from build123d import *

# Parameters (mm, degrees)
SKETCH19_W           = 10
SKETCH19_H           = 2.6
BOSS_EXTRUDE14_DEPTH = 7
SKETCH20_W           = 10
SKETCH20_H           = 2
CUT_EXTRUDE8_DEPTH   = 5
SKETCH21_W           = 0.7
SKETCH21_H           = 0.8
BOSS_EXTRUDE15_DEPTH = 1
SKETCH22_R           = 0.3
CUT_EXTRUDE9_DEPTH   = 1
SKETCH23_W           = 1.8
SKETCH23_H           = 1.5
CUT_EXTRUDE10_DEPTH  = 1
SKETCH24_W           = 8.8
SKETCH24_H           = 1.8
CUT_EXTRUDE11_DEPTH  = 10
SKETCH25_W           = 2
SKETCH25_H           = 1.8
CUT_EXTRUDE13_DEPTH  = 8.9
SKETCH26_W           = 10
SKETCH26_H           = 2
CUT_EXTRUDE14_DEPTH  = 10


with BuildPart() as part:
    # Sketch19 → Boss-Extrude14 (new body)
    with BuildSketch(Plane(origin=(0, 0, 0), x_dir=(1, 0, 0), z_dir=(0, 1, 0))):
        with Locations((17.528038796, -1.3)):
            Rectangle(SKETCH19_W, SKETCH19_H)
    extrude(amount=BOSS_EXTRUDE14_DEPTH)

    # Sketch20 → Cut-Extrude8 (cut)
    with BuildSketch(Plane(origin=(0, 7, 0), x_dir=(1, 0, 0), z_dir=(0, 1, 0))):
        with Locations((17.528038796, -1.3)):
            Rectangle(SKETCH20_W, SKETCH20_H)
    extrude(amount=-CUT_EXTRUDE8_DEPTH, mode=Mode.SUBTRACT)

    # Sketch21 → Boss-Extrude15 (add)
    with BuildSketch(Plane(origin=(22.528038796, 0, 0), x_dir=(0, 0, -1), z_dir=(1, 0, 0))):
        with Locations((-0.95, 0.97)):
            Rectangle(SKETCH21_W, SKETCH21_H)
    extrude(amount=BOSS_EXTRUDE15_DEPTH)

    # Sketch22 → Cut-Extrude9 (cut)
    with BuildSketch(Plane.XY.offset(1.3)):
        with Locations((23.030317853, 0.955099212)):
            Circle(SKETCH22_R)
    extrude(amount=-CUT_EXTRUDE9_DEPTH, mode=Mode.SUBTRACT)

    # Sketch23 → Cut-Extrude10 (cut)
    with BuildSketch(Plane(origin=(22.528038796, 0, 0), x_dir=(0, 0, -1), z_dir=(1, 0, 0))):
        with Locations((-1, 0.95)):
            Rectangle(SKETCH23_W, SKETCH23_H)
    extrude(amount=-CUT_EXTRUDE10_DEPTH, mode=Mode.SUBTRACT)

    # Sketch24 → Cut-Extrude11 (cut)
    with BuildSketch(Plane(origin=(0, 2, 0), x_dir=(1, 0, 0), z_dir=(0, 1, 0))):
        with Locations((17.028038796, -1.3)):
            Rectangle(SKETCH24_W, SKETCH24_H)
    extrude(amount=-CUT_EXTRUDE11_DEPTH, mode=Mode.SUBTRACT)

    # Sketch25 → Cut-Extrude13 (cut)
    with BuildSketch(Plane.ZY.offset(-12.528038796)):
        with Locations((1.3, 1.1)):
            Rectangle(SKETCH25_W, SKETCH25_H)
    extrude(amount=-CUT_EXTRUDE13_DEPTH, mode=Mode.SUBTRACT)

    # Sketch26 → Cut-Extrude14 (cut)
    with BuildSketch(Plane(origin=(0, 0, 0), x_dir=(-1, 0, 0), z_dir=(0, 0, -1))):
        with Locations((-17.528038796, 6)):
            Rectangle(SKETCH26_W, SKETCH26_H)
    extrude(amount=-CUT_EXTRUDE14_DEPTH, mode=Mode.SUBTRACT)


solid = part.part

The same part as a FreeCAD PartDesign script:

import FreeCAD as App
import Part
import Sketcher

V = App.Vector


def add_polygon(sketch, points):
    """Adds a closed chain of lines whose ends are joined by coincident constraints."""
    first, n = sketch.GeometryCount, len(points)
    for a, b in zip(points, points[1:] + points[:1]):
        sketch.addGeometry(Part.LineSegment(App.Vector(*a, 0), App.Vector(*b, 0)), False)
    for i in range(n):
        sketch.addConstraint(Sketcher.Constraint("Coincident", first + i, 2, first + (i + 1) % n, 1))

doc = App.newDocument("Part")
params = doc.addObject("Spreadsheet::Sheet", "Params")
for row, (alias, value) in enumerate([
    ("sketch1_width", "10 mm"),
    ("sketch1_height", "2.6 mm"),
    ("pad1_length", "7 mm"),
    ("sketch2_width", "10 mm"),
    ("sketch2_height", "2 mm"),
    ("pocket1_length", "5 mm"),
    ("sketch3_width", "0.8 mm"),
    ("sketch3_height", "0.7 mm"),
    ("pad2_length", "1 mm"),
    ("sketch4_diameter", "0.6 mm"),
    ("pocket2_length", "1 mm"),
    ("sketch5_width", "1.5 mm"),
    ("sketch5_height", "1.8 mm"),
    ("pocket3_length", "1 mm"),
    ("sketch6_width", "8.8 mm"),
    ("sketch6_height", "1.8 mm"),
    ("pocket4_length", "10 mm"),
    ("sketch7_height", "2 mm"),
    ("sketch7_width", "1.8 mm"),
    ("pocket5_length", "8.9 mm"),
    ("sketch8_width", "10 mm"),
    ("sketch8_height", "2 mm"),
    ("pocket6_length", "10 mm"),
], start=1):
    params.set(f"A{row}", alias)
    params.set(f"B{row}", "=" + value)
    params.setAlias(f"B{row}", alias)

body = doc.addObject("PartDesign::Body", "Body")
body.AllowCompound = True

# Sketch on XZ plane
sketch1 = body.newObject("Sketcher::SketchObject", "Sketch")
sketch1.AttachmentSupport = (doc.getObject("XZ_Plane"), [""])
sketch1.MapMode = "FlatFace"
add_polygon(sketch1, [(12.528039, 0), (12.528039, 2.6), (22.528039, 2.6), (22.528039, 0)])  # lines 0-3
sketch1.addConstraint([
    Sketcher.Constraint("Vertical", 0),
    Sketcher.Constraint("Horizontal", 1),
    Sketcher.Constraint("Vertical", 2),
    Sketcher.Constraint("Horizontal", 3),
    Sketcher.Constraint("PointOnObject", 2, 2, -1),
    Sketcher.Constraint("DistanceX", 1, 1, 1, 2, 10.0),
    Sketcher.Constraint("DistanceY", 0, 1, 0, 2, 2.6),
    Sketcher.Constraint("DistanceX", -1, 1, 0, 2, 12.528039),
])
sketch1.setExpression("Constraints[9]", "Params.sketch1_width")
sketch1.setExpression("Constraints[10]", "Params.sketch1_height")
pad1 = body.newObject("PartDesign::Pad", "Pad")
pad1.Profile = sketch1
pad1.setExpression("Length", "Params.pad1_length")
pad1.Reversed = True

# Sketch on XZ plane
sketch2 = body.newObject("Sketcher::SketchObject", "Sketch001")
sketch2.AttachmentSupport = (doc.getObject("XZ_Plane"), [""])
sketch2.MapMode = "FlatFace"
sketch2.AttachmentOffset = App.Placement(V(0, 0, -7), App.Rotation())
add_polygon(sketch2, [(12.528039, 0.3), (12.528039, 2.3), (22.528039, 2.3), (22.528039, 0.3)])  # lines 0-3
sketch2.addConstraint([
    Sketcher.Constraint("Vertical", 0),
    Sketcher.Constraint("Horizontal", 1),
    Sketcher.Constraint("Vertical", 2),
    Sketcher.Constraint("Horizontal", 3),
    Sketcher.Constraint("DistanceX", 1, 1, 1, 2, 10.0),
    Sketcher.Constraint("DistanceY", 0, 1, 0, 2, 2.0),
    Sketcher.Constraint("DistanceY", -1, 1, 0, 2, 2.3),
    Sketcher.Constraint("DistanceX", -1, 1, 0, 2, 12.528039),
])
sketch2.setExpression("Constraints[8]", "Params.sketch2_width")
sketch2.setExpression("Constraints[9]", "Params.sketch2_height")
pocket1 = body.newObject("PartDesign::Pocket", "Pocket")
pocket1.Profile = sketch2
pocket1.setExpression("Length", "Params.pocket1_length")
pocket1.Reversed = True

# Sketch on YZ plane
sketch3 = body.newObject("Sketcher::SketchObject", "Sketch002")
sketch3.AttachmentSupport = (doc.getObject("YZ_Plane"), [""])
sketch3.MapMode = "FlatFace"
sketch3.AttachmentOffset = App.Placement(V(0, 0, 22.528039), App.Rotation())
add_polygon(sketch3, [(1.37, 1.3), (0.57, 1.3), (0.57, 0.6), (1.37, 0.6)])  # lines 0-3
sketch3.addConstraint([
    Sketcher.Constraint("Horizontal", 0),
    Sketcher.Constraint("Vertical", 1),
    Sketcher.Constraint("Horizontal", 2),
    Sketcher.Constraint("Vertical", 3),
    Sketcher.Constraint("DistanceX", 0, 2, 0, 1, 0.8),
    Sketcher.Constraint("DistanceY", 1, 2, 1, 1, 0.7),
    Sketcher.Constraint("DistanceY", -1, 1, 0, 2, 1.3),
    Sketcher.Constraint("DistanceX", -1, 1, 0, 2, 0.57),
])
sketch3.setExpression("Constraints[8]", "Params.sketch3_width")
sketch3.setExpression("Constraints[9]", "Params.sketch3_height")
pad2 = body.newObject("PartDesign::Pad", "Pad001")
pad2.Profile = sketch3
pad2.setExpression("Length", "Params.pad2_length")

# Sketch on XY plane
sketch4 = body.newObject("Sketcher::SketchObject", "Sketch003")
sketch4.AttachmentSupport = (doc.getObject("XY_Plane"), [""])
sketch4.MapMode = "FlatFace"
sketch4.AttachmentOffset = App.Placement(V(0, 0, 1.3), App.Rotation())
sketch4.addGeometry(Part.Circle(V(23.030318, 0.955099, 0), V(0, 0, 1), 0.3), False)
sketch4.addConstraint([
    Sketcher.Constraint("Diameter", 0, 0.6),
    Sketcher.Constraint("DistanceY", -1, 1, 0, 3, 0.955099),
    Sketcher.Constraint("DistanceX", -1, 1, 0, 3, 23.030318),
])
sketch4.setExpression("Constraints[0]", "Params.sketch4_diameter")
pocket2 = body.newObject("PartDesign::Pocket", "Pocket001")
pocket2.Profile = sketch4
pocket2.setExpression("Length", "Params.pocket2_length")

# Sketch on YZ plane
sketch5 = body.newObject("Sketcher::SketchObject", "Sketch004")
sketch5.AttachmentSupport = (doc.getObject("YZ_Plane"), [""])
sketch5.MapMode = "FlatFace"
sketch5.AttachmentOffset = App.Placement(V(0, 0, 22.528039), App.Rotation())
add_polygon(sketch5, [(1.7, 1.9), (0.2, 1.9), (0.2, 0.1), (1.7, 0.1)])  # lines 0-3
sketch5.addConstraint([
    Sketcher.Constraint("Horizontal", 0),
    Sketcher.Constraint("Vertical", 1),
    Sketcher.Constraint("Horizontal", 2),
    Sketcher.Constraint("Vertical", 3),
    Sketcher.Constraint("DistanceX", 0, 2, 0, 1, 1.5),
    Sketcher.Constraint("DistanceY", 1, 2, 1, 1, 1.8),
    Sketcher.Constraint("DistanceX", -1, 1, 0, 2, 0.2),
    Sketcher.Constraint("DistanceY", -1, 1, 0, 2, 1.9),
])
sketch5.setExpression("Constraints[8]", "Params.sketch5_width")
sketch5.setExpression("Constraints[9]", "Params.sketch5_height")
pocket3 = body.newObject("PartDesign::Pocket", "Pocket002")
pocket3.Profile = sketch5
pocket3.setExpression("Length", "Params.pocket3_length")

# Sketch on XZ plane
sketch6 = body.newObject("Sketcher::SketchObject", "Sketch005")
sketch6.AttachmentSupport = (doc.getObject("XZ_Plane"), [""])
sketch6.MapMode = "FlatFace"
sketch6.AttachmentOffset = App.Placement(V(0, 0, -2), App.Rotation())
add_polygon(sketch6, [(12.628039, 0.4), (12.628039, 2.2), (21.428039, 2.2), (21.428039, 0.4)])  # lines 0-3
sketch6.addConstraint([
    Sketcher.Constraint("Vertical", 0),
    Sketcher.Constraint("Horizontal", 1),
    Sketcher.Constraint("Vertical", 2),
    Sketcher.Constraint("Horizontal", 3),
    Sketcher.Constraint("DistanceX", 1, 1, 1, 2, 8.8),
    Sketcher.Constraint("DistanceY", 0, 1, 0, 2, 1.8),
    Sketcher.Constraint("DistanceY", -1, 1, 0, 2, 2.2),
    Sketcher.Constraint("DistanceX", -1, 1, 0, 2, 12.628039),
])
sketch6.setExpression("Constraints[8]", "Params.sketch6_width")
sketch6.setExpression("Constraints[9]", "Params.sketch6_height")
pocket4 = body.newObject("PartDesign::Pocket", "Pocket003")
pocket4.Profile = sketch6
pocket4.setExpression("Length", "Params.pocket4_length")
pocket4.Reversed = True

# Sketch on YZ plane
sketch7 = body.newObject("Sketcher::SketchObject", "Sketch006")
sketch7.AttachmentSupport = (doc.getObject("YZ_Plane"), [""])
sketch7.MapMode = "FlatFace"
sketch7.AttachmentOffset = App.Placement(V(0, 0, 12.528039), App.Rotation())
add_polygon(sketch7, [(2, 0.3), (0.2, 0.3), (0.2, 2.3), (2, 2.3)])  # lines 0-3
sketch7.addConstraint([
    Sketcher.Constraint("Horizontal", 0),
    Sketcher.Constraint("Vertical", 1),
    Sketcher.Constraint("Horizontal", 2),
    Sketcher.Constraint("Vertical", 3),
    Sketcher.Constraint("DistanceY", 1, 1, 1, 2, 2.0),
    Sketcher.Constraint("DistanceX", 0, 2, 0, 1, 1.8),
    Sketcher.Constraint("DistanceX", -1, 1, 2, 2, 2.0),
    Sketcher.Constraint("DistanceY", -1, 1, 0, 2, 0.3),
])
sketch7.setExpression("Constraints[8]", "Params.sketch7_height")
sketch7.setExpression("Constraints[9]", "Params.sketch7_width")
pocket5 = body.newObject("PartDesign::Pocket", "Pocket004")
pocket5.Profile = sketch7
pocket5.setExpression("Length", "Params.pocket5_length")
pocket5.Reversed = True

# Sketch on XY plane
sketch8 = body.newObject("Sketcher::SketchObject", "Sketch007")
sketch8.AttachmentSupport = (doc.getObject("XY_Plane"), [""])
sketch8.MapMode = "FlatFace"
add_polygon(sketch8, [(22.528039, 7), (22.528039, 5), (12.528039, 5), (12.528039, 7)])  # lines 0-3
sketch8.addConstraint([
    Sketcher.Constraint("Vertical", 0),
    Sketcher.Constraint("Horizontal", 1),
    Sketcher.Constraint("Vertical", 2),
    Sketcher.Constraint("Horizontal", 3),
    Sketcher.Constraint("DistanceX", 1, 2, 1, 1, 10.0),
    Sketcher.Constraint("DistanceY", 0, 2, 0, 1, 2.0),
    Sketcher.Constraint("DistanceY", -1, 1, 0, 2, 5.0),
    Sketcher.Constraint("DistanceX", -1, 1, 0, 2, 22.528039),
])
sketch8.setExpression("Constraints[8]", "Params.sketch8_width")
sketch8.setExpression("Constraints[9]", "Params.sketch8_height")
pocket6 = body.newObject("PartDesign::Pocket", "Pocket005")
pocket6.Profile = sketch8
pocket6.setExpression("Length", "Params.pocket6_length")
pocket6.Reversed = True

doc.recompute()
